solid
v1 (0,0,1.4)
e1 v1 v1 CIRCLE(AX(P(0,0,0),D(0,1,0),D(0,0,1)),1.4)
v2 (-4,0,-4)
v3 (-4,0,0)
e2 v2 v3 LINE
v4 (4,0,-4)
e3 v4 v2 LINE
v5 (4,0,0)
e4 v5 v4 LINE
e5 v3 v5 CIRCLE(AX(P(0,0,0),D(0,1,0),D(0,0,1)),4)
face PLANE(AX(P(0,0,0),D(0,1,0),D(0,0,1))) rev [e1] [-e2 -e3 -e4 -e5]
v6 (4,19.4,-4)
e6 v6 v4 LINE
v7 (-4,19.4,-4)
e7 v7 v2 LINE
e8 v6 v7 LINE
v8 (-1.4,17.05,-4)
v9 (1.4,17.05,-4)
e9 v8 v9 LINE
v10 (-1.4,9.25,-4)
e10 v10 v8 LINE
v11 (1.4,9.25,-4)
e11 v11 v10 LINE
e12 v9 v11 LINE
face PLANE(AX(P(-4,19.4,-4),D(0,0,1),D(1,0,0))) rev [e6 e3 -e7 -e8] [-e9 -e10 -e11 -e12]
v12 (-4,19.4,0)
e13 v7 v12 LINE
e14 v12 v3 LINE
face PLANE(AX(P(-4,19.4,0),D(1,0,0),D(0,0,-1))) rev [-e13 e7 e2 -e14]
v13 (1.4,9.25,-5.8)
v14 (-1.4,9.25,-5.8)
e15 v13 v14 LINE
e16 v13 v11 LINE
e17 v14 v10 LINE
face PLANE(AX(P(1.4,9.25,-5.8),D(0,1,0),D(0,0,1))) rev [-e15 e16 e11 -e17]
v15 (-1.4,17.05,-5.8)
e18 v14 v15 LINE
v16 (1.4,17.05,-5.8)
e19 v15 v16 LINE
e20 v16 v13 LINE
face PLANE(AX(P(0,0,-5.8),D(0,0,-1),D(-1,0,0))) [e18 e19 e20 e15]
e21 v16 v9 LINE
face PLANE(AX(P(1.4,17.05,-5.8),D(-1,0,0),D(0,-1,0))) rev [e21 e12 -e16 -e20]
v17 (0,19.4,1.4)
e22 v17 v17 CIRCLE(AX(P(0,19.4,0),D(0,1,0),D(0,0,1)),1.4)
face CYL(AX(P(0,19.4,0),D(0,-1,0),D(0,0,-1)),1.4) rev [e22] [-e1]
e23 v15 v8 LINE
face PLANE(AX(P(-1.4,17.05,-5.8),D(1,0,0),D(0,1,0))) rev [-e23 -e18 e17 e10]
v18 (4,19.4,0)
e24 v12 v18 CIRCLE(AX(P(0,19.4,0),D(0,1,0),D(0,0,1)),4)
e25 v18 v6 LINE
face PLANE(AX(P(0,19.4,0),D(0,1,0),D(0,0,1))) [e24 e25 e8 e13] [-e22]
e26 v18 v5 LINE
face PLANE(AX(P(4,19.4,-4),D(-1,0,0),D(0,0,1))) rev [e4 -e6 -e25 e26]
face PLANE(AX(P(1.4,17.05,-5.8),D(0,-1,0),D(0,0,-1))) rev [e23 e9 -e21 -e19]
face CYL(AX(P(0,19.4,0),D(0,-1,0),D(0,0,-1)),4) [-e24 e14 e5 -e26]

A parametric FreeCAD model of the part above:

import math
import FreeCAD as App
import Part
import Sketcher
Q = App.Units.Quantity

doc = App.newDocument("Part")
body = doc.addObject("PartDesign::Body", "Body")

sketch1 = body.newObject("Sketcher::SketchObject", "Sketch")
sketch1.AttachmentSupport = (doc.getObject("XZ_Plane"), [""])
sketch1.MapMode = "FlatFace"
sketch1.addGeometry([
    Part.LineSegment(App.Vector(-4, -4, 0), App.Vector(-4, 0, 0)),
    Part.ArcOfCircle(Part.Circle(App.Vector(0, 0, 0), App.Vector(0, 0, 1), 4), math.radians(0), math.radians(180)),
    Part.LineSegment(App.Vector(4, 0, 0), App.Vector(4, -4, 0)),
    Part.LineSegment(App.Vector(4, -4, 0), App.Vector(-4, -4, 0)),
    Part.Circle(App.Vector(0, 0, 0), App.Vector(0, 0, 1), 1.4),
], False)
sketch1.addConstraint([
    Sketcher.Constraint("Tangent", 0, 2, 1, 2),
    Sketcher.Constraint("Tangent", 1, 1, 2, 1),
    Sketcher.Constraint("Coincident", 2, 2, 3, 1),
    Sketcher.Constraint("Coincident", 3, 2, 0, 1),
    Sketcher.Constraint("Vertical", 0),
    Sketcher.Constraint("Vertical", 2),
    Sketcher.Constraint("Horizontal", 3),
    Sketcher.Constraint("Coincident", 1, 3, -1, 1),
    Sketcher.Constraint("Coincident", 4, 3, -1, 1),
    Sketcher.Constraint("Radius", 1, Q("4 mm")),
    Sketcher.Constraint("Diameter", 4, Q("2.8 mm")),
    Sketcher.Constraint("DistanceY", 0, 1, 0, 2, Q("4 mm")),
])
pad1 = body.newObject("PartDesign::Pad", "Pad")
pad1.Profile = sketch1
pad1.Length = 19.4
pad1.Reversed = True

sketch2 = body.newObject("Sketcher::SketchObject", "Sketch001")
sketch2.AttachmentSupport = (doc.getObject("XY_Plane"), [""])
sketch2.MapMode = "FlatFace"
sketch2.AttachmentOffset = App.Placement(App.Vector(0, 0, -4), App.Rotation())
sketch2.addGeometry([
    Part.LineSegment(App.Vector(1.4, 17.1, 0), App.Vector(1.4, 9.2, 0)),
    Part.LineSegment(App.Vector(1.4, 9.2, 0), App.Vector(-1.4, 9.2, 0)),
    Part.LineSegment(App.Vector(-1.4, 9.2, 0), App.Vector(-1.4, 17.1, 0)),
    Part.LineSegment(App.Vector(-1.4, 17.1, 0), App.Vector(1.4, 17.1, 0)),
], False)
sketch2.addConstraint([
    Sketcher.Constraint("Coincident", 0, 2, 1, 1),
    Sketcher.Constraint("Coincident", 1, 2, 2, 1),
    Sketcher.Constraint("Coincident", 2, 2, 3, 1),
    Sketcher.Constraint("Coincident", 3, 2, 0, 1),
    Sketcher.Constraint("Vertical", 0),
    Sketcher.Constraint("Horizontal", 1),
    Sketcher.Constraint("Vertical", 2),
    Sketcher.Constraint("Horizontal", 3),
    Sketcher.Constraint("DistanceX", 1, 2, 1, 1, Q("2.8 mm")),
    Sketcher.Constraint("DistanceY", 0, 2, 0, 1, Q("7.8 mm")),
    Sketcher.Constraint("DistanceX", -1, 1, 0, 2, Q("1.4 mm")),
    Sketcher.Constraint("DistanceY", -1, 1, 0, 2, Q("9.25 mm")),
])
pad2 = body.newObject("PartDesign::Pad", "Pad001")
pad2.Profile = sketch2
pad2.Length = 1.8
pad2.Reversed = True

doc.recompute()
